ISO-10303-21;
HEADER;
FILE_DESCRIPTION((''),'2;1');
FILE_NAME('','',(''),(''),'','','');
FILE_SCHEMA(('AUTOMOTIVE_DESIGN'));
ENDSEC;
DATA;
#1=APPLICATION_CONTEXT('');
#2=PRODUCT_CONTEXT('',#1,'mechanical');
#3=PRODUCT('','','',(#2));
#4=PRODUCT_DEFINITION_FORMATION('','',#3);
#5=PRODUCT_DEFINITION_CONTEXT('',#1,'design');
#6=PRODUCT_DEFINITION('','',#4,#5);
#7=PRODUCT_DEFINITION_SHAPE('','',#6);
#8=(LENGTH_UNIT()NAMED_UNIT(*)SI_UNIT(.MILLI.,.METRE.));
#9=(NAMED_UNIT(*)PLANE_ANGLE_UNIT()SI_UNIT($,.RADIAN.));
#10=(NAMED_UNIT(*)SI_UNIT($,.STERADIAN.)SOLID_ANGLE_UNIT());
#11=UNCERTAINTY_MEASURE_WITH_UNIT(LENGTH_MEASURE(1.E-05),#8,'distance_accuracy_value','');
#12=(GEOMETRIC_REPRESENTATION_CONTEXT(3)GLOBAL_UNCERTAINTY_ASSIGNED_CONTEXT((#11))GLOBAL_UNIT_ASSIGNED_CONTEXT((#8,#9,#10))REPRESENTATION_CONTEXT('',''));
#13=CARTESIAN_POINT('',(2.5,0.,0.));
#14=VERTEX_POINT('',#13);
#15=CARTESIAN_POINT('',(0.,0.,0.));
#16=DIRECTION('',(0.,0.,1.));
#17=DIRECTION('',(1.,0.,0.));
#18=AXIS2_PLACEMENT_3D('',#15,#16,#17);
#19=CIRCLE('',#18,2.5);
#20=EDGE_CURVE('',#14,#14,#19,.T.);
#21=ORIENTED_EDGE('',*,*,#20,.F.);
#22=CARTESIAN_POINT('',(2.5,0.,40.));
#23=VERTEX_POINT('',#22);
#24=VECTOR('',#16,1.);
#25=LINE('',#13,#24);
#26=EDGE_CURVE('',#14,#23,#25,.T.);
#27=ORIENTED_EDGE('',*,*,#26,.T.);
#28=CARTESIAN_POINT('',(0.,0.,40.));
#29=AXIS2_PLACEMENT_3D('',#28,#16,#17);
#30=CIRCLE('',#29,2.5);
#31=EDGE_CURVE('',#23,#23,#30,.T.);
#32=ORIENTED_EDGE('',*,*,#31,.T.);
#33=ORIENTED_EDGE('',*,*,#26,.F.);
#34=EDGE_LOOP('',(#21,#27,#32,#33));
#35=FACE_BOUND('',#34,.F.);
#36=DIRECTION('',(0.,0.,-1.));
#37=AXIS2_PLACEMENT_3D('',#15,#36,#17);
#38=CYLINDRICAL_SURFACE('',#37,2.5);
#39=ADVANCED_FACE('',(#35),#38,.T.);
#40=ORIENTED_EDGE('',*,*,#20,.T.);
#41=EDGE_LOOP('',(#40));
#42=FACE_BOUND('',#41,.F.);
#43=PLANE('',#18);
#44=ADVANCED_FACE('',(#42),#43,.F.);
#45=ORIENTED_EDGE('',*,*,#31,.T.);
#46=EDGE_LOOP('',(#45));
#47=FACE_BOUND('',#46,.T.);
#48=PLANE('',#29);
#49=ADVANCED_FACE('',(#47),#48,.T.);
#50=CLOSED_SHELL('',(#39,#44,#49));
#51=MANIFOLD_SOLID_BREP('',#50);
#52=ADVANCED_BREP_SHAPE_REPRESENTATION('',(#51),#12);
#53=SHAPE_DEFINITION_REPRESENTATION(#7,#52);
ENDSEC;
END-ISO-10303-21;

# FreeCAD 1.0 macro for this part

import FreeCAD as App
import Part
import Sketcher
from FreeCAD import Vector

doc = App.newDocument("Part")
params = doc.addObject("Spreadsheet::Sheet", "Params")
for row, (alias, value) in enumerate([
    ("sketch1_diameter", "5 mm"),
    ("pad1_length", "40 mm"),
], start=1):
    params.set(f"A{row}", alias)
    params.set(f"B{row}", "=" + value)
    params.setAlias(f"B{row}", alias)

body = doc.addObject("PartDesign::Body", "Body")

sketch1 = body.newObject("Sketcher::SketchObject", "Sketch")
sketch1.AttachmentSupport = (doc.getObject("XY_Plane"), [""])
sketch1.MapMode = "FlatFace"
sketch1.addGeometry(Part.Circle(Vector(0, 0, 0), Vector(0, 0, 1), 2.5), False)
sketch1.addConstraint(Sketcher.Constraint("Coincident", 0, 3, -1, 1))
sketch1.addConstraint(Sketcher.Constraint("Diameter", 0, 5.0))
sketch1.setExpression("Constraints[1]", "Params.sketch1_diameter")
pad1 = body.newObject("PartDesign::Pad", "Pad")
pad1.Profile = sketch1
pad1.setExpression("Length", "Params.pad1_length")

doc.recompute()
